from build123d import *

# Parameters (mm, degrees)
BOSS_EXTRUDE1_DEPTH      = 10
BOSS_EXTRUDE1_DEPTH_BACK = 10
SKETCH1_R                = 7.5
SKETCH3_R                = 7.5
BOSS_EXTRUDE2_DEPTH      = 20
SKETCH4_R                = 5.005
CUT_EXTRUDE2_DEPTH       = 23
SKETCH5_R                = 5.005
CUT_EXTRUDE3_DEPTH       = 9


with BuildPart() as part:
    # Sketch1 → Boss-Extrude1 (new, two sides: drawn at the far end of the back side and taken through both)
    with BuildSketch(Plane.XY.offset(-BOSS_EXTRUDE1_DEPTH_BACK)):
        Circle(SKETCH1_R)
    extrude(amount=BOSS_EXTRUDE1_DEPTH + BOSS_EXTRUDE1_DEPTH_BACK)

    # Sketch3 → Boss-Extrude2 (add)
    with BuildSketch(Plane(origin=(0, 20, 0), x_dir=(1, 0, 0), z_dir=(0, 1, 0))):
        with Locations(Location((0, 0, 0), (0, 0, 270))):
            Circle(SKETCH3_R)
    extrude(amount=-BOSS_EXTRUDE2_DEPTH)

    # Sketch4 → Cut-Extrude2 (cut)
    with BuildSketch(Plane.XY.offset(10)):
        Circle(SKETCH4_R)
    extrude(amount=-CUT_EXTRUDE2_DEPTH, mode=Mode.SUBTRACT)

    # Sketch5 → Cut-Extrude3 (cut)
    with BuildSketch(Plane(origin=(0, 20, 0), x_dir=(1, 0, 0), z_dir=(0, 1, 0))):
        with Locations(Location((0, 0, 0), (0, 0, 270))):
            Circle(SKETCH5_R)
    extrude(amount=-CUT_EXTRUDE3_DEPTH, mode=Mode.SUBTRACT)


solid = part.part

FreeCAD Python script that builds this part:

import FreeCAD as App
import Part
import Sketcher

V = App.Vector
Q = App.Units.Quantity

doc = App.newDocument("Part")
body = doc.addObject("PartDesign::Body", "Body")

# Sketch on XY plane
sketch1 = doc.addObject("Sketcher::SketchObject", "Sketch")
body.addObject(sketch1)
sketch1.AttachmentSupport = (doc.XY_Plane, [""])
sketch1.MapMode = "FlatFace"
sketch1.addGeometry(Part.Circle(V(0, 0, 0), V(0, 0, 1), 7.5), False)
sketch1.addConstraint([
    Sketcher.Constraint("Coincident", 0, 3, -1, 1),
    Sketcher.Constraint("Diameter", 0, Q("15 mm")),
])
pad1 = doc.addObject("PartDesign::Pad", "Pad")
body.addObject(pad1)
pad1.Profile = sketch1
pad1.Type = "TwoLengths"
pad1.Length = 10
pad1.Length2 = 10

# Sketch on XZ plane
sketch2 = doc.addObject("Sketcher::SketchObject", "Sketch001")
body.addObject(sketch2)
sketch2.AttachmentSupport = (doc.XZ_Plane, [""])
sketch2.MapMode = "FlatFace"
sketch2.AttachmentOffset = App.Placement(V(0, 0, -20), App.Rotation())
sketch2.addGeometry(Part.Circle(V(0, 0, 0), V(0, 0, 1), 7.5), False)
sketch2.addConstraint([
    Sketcher.Constraint("Coincident", 0, 3, -1, 1),
    Sketcher.Constraint("Diameter", 0, Q("15 mm")),
])
pad2 = doc.addObject("PartDesign::Pad", "Pad001")
body.addObject(pad2)
pad2.Profile = sketch2
pad2.Length = 20

# Sketch on XY plane
sketch3 = doc.addObject("Sketcher::SketchObject", "Sketch002")
body.addObject(sketch3)
sketch3.AttachmentSupport = (doc.XY_Plane, [""])
sketch3.MapMode = "FlatFace"
sketch3.AttachmentOffset = App.Placement(V(0, 0, 10), App.Rotation())
sketch3.addGeometry(Part.Circle(V(0, 0, 0), V(0, 0, 1), 5.005), False)
sketch3.addConstraint([
    Sketcher.Constraint("Coincident", 0, 3, -1, 1),
    Sketcher.Constraint("Diameter", 0, Q("10.01 mm")),
])
pocket1 = doc.addObject("PartDesign::Pocket", "Pocket")
body.addObject(pocket1)
pocket1.Profile = sketch3
pocket1.Length = 23

# Sketch on XZ plane
sketch4 = doc.addObject("Sketcher::SketchObject", "Sketch003")
body.addObject(sketch4)
sketch4.AttachmentSupport = (doc.XZ_Plane, [""])
sketch4.MapMode = "FlatFace"
sketch4.AttachmentOffset = App.Placement(V(0, 0, -20), App.Rotation())
sketch4.addGeometry(Part.Circle(V(0, 0, 0), V(0, 0, 1), 5.005), False)
sketch4.addConstraint([
    Sketcher.Constraint("Coincident", 0, 3, -1, 1),
    Sketcher.Constraint("Diameter", 0, Q("10.01 mm")),
])
pocket2 = doc.addObject("PartDesign::Pocket", "Pocket001")
body.addObject(pocket2)
pocket2.Profile = sketch4
pocket2.Length = 9
pocket2.Reversed = True

doc.recompute()
